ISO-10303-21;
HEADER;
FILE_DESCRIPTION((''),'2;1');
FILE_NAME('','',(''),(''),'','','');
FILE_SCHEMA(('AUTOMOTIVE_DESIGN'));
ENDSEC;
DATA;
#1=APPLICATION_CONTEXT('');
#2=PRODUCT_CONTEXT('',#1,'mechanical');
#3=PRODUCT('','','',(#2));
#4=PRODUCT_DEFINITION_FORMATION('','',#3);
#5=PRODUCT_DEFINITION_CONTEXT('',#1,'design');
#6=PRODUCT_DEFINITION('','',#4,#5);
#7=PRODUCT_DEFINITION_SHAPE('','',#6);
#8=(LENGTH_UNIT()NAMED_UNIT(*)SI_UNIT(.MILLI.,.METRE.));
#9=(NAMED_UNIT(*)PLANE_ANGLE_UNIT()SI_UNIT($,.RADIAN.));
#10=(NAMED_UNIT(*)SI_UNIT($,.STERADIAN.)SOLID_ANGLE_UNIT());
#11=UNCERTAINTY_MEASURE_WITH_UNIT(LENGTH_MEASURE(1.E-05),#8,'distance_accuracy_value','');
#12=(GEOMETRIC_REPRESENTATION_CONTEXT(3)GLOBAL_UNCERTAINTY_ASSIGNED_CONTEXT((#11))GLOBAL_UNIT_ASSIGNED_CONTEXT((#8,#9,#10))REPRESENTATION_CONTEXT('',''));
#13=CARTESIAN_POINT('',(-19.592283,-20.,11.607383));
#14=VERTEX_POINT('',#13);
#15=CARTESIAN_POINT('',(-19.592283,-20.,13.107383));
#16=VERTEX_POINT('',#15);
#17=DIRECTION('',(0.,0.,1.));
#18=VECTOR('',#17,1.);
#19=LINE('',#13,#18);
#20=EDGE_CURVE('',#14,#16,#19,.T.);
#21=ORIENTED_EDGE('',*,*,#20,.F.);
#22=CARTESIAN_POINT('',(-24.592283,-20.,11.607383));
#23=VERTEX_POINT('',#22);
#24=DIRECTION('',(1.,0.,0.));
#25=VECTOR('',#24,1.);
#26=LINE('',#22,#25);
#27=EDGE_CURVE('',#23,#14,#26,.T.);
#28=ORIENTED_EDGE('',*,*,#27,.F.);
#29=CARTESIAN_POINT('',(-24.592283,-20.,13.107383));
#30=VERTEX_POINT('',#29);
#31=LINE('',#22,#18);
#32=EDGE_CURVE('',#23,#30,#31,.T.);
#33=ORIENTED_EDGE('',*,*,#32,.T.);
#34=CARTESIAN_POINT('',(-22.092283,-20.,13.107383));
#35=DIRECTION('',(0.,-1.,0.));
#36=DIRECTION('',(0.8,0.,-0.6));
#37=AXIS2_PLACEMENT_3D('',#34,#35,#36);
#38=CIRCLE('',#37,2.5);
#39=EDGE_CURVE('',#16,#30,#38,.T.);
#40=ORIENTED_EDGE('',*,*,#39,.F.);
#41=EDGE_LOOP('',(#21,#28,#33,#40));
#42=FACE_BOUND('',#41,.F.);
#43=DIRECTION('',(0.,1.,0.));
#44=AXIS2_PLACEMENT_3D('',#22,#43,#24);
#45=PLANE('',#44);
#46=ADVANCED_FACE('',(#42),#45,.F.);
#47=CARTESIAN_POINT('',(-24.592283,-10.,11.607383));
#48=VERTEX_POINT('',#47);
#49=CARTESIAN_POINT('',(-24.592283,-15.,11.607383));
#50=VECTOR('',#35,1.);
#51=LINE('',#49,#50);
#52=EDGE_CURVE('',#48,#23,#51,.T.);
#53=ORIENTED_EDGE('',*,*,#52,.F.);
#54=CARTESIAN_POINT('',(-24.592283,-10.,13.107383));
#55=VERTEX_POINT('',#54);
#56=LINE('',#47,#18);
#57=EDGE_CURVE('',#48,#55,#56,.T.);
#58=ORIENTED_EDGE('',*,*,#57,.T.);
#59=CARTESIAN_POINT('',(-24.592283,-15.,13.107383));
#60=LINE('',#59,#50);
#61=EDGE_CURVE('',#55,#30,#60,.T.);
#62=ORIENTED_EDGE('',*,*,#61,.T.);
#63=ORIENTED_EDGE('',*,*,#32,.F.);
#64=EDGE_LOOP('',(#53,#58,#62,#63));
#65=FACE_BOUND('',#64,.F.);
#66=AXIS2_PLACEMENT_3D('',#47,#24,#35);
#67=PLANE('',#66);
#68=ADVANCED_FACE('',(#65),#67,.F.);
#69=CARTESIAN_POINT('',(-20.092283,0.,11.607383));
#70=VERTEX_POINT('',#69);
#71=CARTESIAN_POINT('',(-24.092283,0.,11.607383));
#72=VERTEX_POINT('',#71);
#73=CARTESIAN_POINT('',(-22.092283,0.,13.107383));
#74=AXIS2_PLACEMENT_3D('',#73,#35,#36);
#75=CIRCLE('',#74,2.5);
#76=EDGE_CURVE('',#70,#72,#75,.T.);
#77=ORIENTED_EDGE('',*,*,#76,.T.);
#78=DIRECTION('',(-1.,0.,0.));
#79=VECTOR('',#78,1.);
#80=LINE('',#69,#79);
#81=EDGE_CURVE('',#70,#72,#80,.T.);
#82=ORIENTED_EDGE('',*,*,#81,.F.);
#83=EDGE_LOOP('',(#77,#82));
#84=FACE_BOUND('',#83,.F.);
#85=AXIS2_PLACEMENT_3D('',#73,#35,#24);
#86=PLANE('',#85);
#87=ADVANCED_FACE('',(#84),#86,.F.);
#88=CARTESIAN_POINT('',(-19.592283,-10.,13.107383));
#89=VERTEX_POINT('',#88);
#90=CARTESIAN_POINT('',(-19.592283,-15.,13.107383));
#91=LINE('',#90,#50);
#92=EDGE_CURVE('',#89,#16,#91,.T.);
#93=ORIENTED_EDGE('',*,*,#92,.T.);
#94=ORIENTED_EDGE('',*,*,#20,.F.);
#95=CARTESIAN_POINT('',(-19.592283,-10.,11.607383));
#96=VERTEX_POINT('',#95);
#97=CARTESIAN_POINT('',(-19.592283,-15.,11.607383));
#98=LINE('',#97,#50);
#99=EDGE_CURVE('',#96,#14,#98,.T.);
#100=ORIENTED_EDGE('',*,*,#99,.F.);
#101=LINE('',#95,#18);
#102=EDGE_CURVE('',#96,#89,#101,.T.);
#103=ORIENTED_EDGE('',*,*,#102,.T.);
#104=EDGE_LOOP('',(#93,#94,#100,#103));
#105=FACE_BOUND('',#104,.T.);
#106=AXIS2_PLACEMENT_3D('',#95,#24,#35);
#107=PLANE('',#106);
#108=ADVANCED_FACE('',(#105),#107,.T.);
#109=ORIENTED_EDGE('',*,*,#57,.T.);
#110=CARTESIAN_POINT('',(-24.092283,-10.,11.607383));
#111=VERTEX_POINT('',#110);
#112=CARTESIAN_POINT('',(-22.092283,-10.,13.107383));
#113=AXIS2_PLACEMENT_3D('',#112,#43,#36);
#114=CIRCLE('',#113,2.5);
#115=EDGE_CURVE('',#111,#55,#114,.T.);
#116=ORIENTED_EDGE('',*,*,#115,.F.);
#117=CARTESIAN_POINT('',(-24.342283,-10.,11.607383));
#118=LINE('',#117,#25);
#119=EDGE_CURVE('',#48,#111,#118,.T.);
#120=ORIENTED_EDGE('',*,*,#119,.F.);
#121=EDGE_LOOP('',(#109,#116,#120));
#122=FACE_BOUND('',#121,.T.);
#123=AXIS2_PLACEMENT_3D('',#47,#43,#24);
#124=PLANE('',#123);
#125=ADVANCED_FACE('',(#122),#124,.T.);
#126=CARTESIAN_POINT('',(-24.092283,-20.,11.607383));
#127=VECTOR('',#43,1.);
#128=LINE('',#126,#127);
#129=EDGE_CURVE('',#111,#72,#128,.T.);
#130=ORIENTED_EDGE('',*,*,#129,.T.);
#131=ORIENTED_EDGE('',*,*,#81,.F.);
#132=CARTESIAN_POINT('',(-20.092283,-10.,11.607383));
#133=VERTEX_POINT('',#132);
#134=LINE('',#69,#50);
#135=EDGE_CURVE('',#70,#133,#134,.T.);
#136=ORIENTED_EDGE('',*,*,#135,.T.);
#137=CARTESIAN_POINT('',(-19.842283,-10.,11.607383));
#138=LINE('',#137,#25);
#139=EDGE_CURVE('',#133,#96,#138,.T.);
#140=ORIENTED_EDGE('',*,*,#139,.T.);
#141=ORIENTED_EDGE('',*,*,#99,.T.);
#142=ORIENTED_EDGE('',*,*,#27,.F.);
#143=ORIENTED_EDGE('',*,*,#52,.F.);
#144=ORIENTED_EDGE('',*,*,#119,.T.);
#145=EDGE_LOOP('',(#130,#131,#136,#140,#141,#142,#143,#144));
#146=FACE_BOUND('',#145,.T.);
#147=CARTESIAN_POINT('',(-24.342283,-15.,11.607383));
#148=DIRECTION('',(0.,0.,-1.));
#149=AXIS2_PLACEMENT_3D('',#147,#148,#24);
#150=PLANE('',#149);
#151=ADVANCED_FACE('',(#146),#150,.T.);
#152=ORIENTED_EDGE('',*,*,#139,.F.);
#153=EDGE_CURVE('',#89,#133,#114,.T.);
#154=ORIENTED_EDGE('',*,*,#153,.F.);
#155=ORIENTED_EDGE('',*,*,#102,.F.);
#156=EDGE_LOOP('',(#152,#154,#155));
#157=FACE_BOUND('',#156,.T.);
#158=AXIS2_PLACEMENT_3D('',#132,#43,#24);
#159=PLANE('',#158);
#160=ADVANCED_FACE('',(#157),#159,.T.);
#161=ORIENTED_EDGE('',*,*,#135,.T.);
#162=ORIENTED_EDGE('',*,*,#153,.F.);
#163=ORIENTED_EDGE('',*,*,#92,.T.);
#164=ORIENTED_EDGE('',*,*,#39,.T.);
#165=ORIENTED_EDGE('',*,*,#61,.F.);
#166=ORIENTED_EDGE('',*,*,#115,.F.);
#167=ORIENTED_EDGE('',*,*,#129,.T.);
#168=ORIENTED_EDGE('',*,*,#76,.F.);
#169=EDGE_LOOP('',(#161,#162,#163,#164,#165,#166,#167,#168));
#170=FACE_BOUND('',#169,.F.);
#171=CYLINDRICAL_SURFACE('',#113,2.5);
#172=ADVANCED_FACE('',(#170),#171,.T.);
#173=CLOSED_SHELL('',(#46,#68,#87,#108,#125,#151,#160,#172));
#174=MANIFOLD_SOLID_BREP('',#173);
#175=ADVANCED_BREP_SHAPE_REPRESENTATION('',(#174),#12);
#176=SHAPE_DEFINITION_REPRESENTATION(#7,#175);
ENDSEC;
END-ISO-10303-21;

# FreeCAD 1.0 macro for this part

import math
import FreeCAD as App
import Part
import Sketcher
Q = App.Units.Quantity

doc = App.newDocument("Part")
body = doc.addObject("PartDesign::Body", "Body")

# Sketch on XZ plane
sketch1 = body.newObject("Sketcher::SketchObject", "Sketch")
sketch1.AttachmentSupport = (doc.getObject("XZ_Plane"), [""])
sketch1.MapMode = "FlatFace"
sketch1.addGeometry(Part.Circle(App.Vector(-22.1, 13.1, 0), App.Vector(0, 0, 1), 2.5), False)
sketch1.addConstraint([
    Sketcher.Constraint("Diameter", 0, Q("5 mm")),
    Sketcher.Constraint("DistanceX", 0, 3, -1, 1, Q("22.092283 mm")),
    Sketcher.Constraint("DistanceY", -1, 1, 0, 3, Q("13.107383 mm")),
])
pad1 = body.newObject("PartDesign::Pad", "Pad")
pad1.Profile = sketch1
pad1.Length = 10

# Sketch on XZ plane
sketch2 = body.newObject("Sketcher::SketchObject", "Sketch001")
sketch2.AttachmentSupport = (doc.getObject("XZ_Plane"), [""])
sketch2.MapMode = "FlatFace"
sketch2.AttachmentOffset = App.Placement(App.Vector(0, 0, 10), App.Rotation())
sketch2.addGeometry([
    Part.LineSegment(App.Vector(-20.1, 11.6, 0), App.Vector(-24.1, 11.6, 0)),
    Part.ArcOfCircle(Part.Circle(App.Vector(-22.1, 13.1, 0), App.Vector(0, 0, 1), 2.5), math.radians(-143), math.radians(-37)),
], False)
sketch2.addConstraint([
    Sketcher.Constraint("Coincident", 0, 1, 1, 2),
    Sketcher.Constraint("Coincident", 1, 1, 0, 2),
    Sketcher.Constraint("Horizontal", 0),
    Sketcher.Constraint("Radius", 1, Q("2.5 mm")),
    Sketcher.Constraint("DistanceX", 0, 2, 0, 1, Q("4 mm")),
    Sketcher.Constraint("DistanceX", 1, 3, -1, 1, Q("22.092283 mm")),
    Sketcher.Constraint("DistanceY", -1, 1, 1, 3, Q("13.107383 mm")),
])
pocket1 = body.newObject("PartDesign::Pocket", "Pocket")
pocket1.Profile = sketch2
pocket1.Length = 10

# Sketch on XZ plane
sketch3 = body.newObject("Sketcher::SketchObject", "Sketch002")
sketch3.AttachmentSupport = (doc.getObject("XZ_Plane"), [""])
sketch3.MapMode = "FlatFace"
sketch3.AttachmentOffset = App.Placement(App.Vector(0, 0, 10), App.Rotation())
sketch3.addGeometry([
    Part.LineSegment(App.Vector(-24.1, 11.6, 0), App.Vector(-20.1, 11.6, 0)),
    Part.ArcOfCircle(Part.Circle(App.Vector(-22.1, 13.1, 0), App.Vector(0, 0, 1), 2.5), math.radians(-37), math.radians(217)),
], False)
sketch3.addConstraint([
    Sketcher.Constraint("Coincident", 0, 1, 1, 2),
    Sketcher.Constraint("Coincident", 1, 1, 0, 2),
    Sketcher.Constraint("Horizontal", 0),
    Sketcher.Constraint("Radius", 1, Q("2.5 mm")),
    Sketcher.Constraint("DistanceX", 0, 1, 0, 2, Q("4 mm")),
    Sketcher.Constraint("DistanceX", 1, 3, -1, 1, Q("22.092283 mm")),
    Sketcher.Constraint("DistanceY", -1, 1, 1, 3, Q("13.107383 mm")),
])
pad2 = body.newObject("PartDesign::Pad", "Pad001")
pad2.Profile = sketch3
pad2.Length = 10

# Sketch on XY plane
sketch4 = body.newObject("Sketcher::SketchObject", "Sketch003")
sketch4.AttachmentSupport = (doc.getObject("XY_Plane"), [""])
sketch4.MapMode = "FlatFace"
sketch4.AttachmentOffset = App.Placement(App.Vector(0, 0, 11.607383), App.Rotation())
sketch4.addGeometry([
    Part.LineSegment(App.Vector(-24.6, -20, 0), App.Vector(-24.6, -10, 0)),  # 0
    Part.LineSegment(App.Vector(-24.6, -10, 0), App.Vector(-24.1, -10, 0)),  # 1
    Part.LineSegment(App.Vector(-24.1, -10, 0), App.Vector(-24.1, -20, 0)),  # 2
    Part.LineSegment(App.Vector(-24.1, -20, 0), App.Vector(-24.6, -20, 0)),  # 3
    Part.LineSegment(App.Vector(-20.1, -20, 0), App.Vector(-20.1, -10, 0)),  # 4
    Part.LineSegment(App.Vector(-20.1, -10, 0), App.Vector(-19.6, -10, 0)),  # 5
    Part.LineSegment(App.Vector(-19.6, -10, 0), App.Vector(-19.6, -20, 0)),  # 6
    Part.LineSegment(App.Vector(-19.6, -20, 0), App.Vector(-20.1, -20, 0)),  # 7
], False)
sketch4.addConstraint([
    Sketcher.Constraint("Coincident", 0, 2, 1, 1),
    Sketcher.Constraint("Coincident", 1, 2, 2, 1),
    Sketcher.Constraint("Coincident", 2, 2, 3, 1),
    Sketcher.Constraint("Coincident", 3, 2, 0, 1),
    Sketcher.Constraint("Coincident", 4, 2, 5, 1),
    Sketcher.Constraint("Coincident", 5, 2, 6, 1),
    Sketcher.Constraint("Coincident", 6, 2, 7, 1),
    Sketcher.Constraint("Coincident", 7, 2, 4, 1),
    Sketcher.Constraint("Vertical", 0),
    Sketcher.Constraint("Horizontal", 1),
    Sketcher.Constraint("Vertical", 2),
    Sketcher.Constraint("Horizontal", 3),
    Sketcher.Constraint("Vertical", 4),
    Sketcher.Constraint("Horizontal", 5),
    Sketcher.Constraint("Vertical", 6),
    Sketcher.Constraint("Horizontal", 7),
    Sketcher.Constraint("Horizontal", 1, 2, 4, 2),
    Sketcher.Constraint("Horizontal", 3, 2, 6, 2),
    Sketcher.Constraint("Equal", 3, 5),
    Sketcher.Constraint("DistanceY", 0, 1, 0, 2, Q("10 mm")),
    Sketcher.Constraint("DistanceX", 1, 1, 1, 2, Q("0.5 mm")),
    Sketcher.Constraint("DistanceY", 0, 2, -1, 1, Q("10 mm")),
    Sketcher.Constraint("DistanceX", 1, 2, 4, 2, Q("4 mm")),
    Sketcher.Constraint("DistanceX", 0, 2, -1, 1, Q("24.592283 mm")),
])
pad3 = body.newObject("PartDesign::Pad", "Pad002")
pad3.Profile = sketch4
pad3.Length = 1.5

doc.recompute()
